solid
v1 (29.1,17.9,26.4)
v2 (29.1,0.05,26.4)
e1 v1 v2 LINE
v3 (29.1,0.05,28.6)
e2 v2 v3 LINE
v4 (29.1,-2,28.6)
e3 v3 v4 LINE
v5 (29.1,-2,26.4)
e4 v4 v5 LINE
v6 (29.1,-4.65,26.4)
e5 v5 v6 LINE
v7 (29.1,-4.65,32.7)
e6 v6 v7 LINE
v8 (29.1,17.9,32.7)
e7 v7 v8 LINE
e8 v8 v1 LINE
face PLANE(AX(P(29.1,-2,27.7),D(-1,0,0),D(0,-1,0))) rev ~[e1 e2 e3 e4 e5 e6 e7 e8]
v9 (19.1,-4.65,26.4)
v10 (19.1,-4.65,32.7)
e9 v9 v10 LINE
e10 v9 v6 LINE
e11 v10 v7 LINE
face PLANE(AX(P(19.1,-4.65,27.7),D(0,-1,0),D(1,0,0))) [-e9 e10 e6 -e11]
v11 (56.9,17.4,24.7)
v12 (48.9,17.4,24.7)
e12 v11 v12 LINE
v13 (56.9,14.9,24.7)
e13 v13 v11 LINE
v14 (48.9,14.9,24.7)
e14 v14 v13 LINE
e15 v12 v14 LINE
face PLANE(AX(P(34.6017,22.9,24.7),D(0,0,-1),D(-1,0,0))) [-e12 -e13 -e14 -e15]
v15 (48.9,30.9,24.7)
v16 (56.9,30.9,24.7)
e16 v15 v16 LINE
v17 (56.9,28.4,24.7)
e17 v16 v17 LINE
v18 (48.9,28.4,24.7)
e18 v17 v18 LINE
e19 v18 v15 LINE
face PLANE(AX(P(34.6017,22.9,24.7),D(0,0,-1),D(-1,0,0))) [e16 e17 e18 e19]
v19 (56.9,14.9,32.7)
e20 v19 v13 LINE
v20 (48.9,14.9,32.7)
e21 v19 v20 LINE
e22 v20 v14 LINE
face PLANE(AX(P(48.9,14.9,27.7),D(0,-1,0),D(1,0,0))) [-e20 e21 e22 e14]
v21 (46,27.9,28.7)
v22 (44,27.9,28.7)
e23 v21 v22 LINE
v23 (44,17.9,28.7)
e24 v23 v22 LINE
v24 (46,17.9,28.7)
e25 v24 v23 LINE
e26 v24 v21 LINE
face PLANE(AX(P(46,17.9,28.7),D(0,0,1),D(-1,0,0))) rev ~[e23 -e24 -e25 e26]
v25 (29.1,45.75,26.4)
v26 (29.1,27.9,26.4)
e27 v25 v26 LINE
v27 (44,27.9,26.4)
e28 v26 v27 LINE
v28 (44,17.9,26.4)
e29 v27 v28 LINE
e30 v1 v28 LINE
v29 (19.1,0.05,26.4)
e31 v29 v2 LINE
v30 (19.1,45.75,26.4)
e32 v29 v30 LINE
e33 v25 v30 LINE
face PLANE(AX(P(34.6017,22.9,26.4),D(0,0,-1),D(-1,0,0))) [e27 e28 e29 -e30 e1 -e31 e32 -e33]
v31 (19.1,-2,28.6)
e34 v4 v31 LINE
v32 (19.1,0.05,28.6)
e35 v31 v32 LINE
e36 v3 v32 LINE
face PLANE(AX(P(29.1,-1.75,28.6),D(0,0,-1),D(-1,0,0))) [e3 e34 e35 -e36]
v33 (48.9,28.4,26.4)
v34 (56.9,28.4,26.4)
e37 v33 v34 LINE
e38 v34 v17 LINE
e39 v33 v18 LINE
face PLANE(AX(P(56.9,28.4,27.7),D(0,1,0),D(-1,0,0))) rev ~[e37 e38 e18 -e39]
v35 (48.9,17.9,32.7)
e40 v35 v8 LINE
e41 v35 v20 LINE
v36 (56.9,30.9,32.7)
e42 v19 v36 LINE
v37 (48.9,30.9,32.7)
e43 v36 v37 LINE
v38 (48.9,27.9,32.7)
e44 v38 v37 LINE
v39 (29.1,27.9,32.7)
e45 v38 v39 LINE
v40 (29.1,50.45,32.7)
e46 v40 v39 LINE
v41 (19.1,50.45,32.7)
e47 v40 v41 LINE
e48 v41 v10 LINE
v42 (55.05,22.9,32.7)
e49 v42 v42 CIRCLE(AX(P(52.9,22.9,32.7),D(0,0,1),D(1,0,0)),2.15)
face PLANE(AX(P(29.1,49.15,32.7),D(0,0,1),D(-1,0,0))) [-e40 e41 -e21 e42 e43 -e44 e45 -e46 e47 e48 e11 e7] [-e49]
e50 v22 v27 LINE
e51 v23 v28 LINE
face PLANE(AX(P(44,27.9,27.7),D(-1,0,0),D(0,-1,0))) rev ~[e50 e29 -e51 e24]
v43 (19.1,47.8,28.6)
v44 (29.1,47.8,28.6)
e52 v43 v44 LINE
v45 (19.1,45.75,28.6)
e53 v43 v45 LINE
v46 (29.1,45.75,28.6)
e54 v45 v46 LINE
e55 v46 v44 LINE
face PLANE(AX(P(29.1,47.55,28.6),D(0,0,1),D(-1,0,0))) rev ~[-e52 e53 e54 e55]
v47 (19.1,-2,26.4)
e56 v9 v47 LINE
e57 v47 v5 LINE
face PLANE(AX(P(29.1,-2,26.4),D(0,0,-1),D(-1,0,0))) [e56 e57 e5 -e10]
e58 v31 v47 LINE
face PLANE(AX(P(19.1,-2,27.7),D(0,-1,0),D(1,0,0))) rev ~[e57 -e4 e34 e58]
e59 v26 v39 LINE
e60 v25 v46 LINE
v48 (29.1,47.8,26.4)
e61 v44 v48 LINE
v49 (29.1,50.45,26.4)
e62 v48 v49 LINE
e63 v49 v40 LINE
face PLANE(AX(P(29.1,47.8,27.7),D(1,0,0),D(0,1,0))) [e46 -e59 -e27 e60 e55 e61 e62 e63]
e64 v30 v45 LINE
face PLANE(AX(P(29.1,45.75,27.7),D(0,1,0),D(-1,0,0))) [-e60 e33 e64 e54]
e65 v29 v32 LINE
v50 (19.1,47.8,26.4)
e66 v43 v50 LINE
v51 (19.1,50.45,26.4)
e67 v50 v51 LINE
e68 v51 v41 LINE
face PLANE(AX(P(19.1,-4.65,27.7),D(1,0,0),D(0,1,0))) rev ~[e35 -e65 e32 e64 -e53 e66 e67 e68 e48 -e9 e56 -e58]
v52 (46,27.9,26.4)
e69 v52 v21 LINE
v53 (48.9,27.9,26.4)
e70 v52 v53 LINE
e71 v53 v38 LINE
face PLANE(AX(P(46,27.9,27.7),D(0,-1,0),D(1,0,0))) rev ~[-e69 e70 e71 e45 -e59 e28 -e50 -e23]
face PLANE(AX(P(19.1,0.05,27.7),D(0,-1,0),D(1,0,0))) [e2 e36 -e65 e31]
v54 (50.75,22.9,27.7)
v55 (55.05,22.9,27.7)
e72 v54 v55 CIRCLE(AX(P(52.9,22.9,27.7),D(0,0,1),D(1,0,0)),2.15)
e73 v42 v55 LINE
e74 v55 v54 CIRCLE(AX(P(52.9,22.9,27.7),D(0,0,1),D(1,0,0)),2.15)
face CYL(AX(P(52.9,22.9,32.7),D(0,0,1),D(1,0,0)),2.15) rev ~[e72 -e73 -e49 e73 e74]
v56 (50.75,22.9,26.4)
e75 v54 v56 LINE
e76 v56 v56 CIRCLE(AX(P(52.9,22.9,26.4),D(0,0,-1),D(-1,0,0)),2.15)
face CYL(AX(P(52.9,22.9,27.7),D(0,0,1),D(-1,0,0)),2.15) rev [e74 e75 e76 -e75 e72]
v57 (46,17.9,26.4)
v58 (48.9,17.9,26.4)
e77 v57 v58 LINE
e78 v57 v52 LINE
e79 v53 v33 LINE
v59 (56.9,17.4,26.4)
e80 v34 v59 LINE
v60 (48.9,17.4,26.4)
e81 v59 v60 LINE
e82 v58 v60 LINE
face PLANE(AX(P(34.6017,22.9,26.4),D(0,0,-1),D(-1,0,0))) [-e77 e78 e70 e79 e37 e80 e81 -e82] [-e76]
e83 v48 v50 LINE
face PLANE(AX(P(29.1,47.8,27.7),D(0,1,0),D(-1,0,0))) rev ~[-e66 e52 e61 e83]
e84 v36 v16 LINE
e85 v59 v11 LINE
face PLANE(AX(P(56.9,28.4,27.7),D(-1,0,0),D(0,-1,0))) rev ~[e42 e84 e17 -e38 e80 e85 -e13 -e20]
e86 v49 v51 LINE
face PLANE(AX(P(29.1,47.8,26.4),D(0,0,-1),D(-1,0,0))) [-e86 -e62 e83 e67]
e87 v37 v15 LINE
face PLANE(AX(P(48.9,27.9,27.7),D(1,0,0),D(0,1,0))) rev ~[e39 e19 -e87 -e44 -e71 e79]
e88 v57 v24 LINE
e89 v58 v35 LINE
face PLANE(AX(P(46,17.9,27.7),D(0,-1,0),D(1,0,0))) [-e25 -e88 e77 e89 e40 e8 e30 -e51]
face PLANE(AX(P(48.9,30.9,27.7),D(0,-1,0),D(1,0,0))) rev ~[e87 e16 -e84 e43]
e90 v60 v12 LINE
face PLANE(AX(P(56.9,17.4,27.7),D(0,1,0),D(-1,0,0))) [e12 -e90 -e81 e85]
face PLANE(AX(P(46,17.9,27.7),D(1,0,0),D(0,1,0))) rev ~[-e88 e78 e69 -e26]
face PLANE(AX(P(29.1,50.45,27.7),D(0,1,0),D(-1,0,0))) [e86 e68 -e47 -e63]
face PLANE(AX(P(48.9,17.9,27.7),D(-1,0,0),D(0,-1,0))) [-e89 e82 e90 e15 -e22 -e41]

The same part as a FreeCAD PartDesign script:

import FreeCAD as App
import Part
import Sketcher
from FreeCAD import Vector
Q = App.Units.Quantity


def add_polygon(sketch, points):
    """Adds a closed chain of lines whose ends are joined by coincident constraints."""
    first, n = sketch.GeometryCount, len(points)
    for a, b in zip(points, points[1:] + points[:1]):
        sketch.addGeometry(Part.LineSegment(App.Vector(*a, 0), App.Vector(*b, 0)), False)
    for i in range(n):
        sketch.addConstraint(Sketcher.Constraint("Coincident", first + i, 2, first + (i + 1) % n, 1))

doc = App.newDocument("Part")
body = doc.addObject("PartDesign::Body", "Body")

# Sketch on XY plane
sketch1 = doc.addObject("Sketcher::SketchObject", "Sketch")
body.addObject(sketch1)
sketch1.AttachmentSupport = (doc.XY_Plane, [""])
sketch1.MapMode = "FlatFace"
sketch1.AttachmentOffset = App.Placement(Vector(0, 0, 27.7), App.Rotation())
add_polygon(sketch1, [(29, 0), (29, 46), (19, 46), (19, 0)])  # lines 0-3
sketch1.addConstraint([
    Sketcher.Constraint("Vertical", 0),
    Sketcher.Constraint("Horizontal", 1),
    Sketcher.Constraint("Vertical", 2),
    Sketcher.Constraint("Horizontal", 3),
    Sketcher.Constraint("DistanceX", 1, 2, 1, 1, Q("10 mm")),
    Sketcher.Constraint("DistanceY", 0, 1, 0, 2, Q("45.3 mm")),
    Sketcher.Constraint("DistanceX", -1, 1, 0, 2, Q("29.1 mm")),
    Sketcher.Constraint("DistanceY", -1, 1, 0, 2, Q("45.55 mm")),
])
pad1 = doc.addObject("PartDesign::Pad", "Pad")
body.addObject(pad1)
pad1.Profile = sketch1
pad1.Length = 3

# Sketch on XZ plane
sketch2 = doc.addObject("Sketcher::SketchObject", "Sketch001")
body.addObject(sketch2)
sketch2.AttachmentSupport = (doc.XZ_Plane, [""])
sketch2.MapMode = "FlatFace"
sketch2.AttachmentOffset = App.Placement(Vector(0, 0, -45.55), App.Rotation())
add_polygon(sketch2, [(29.1, 30.7), (29.1, 28.6), (19.1, 28.6), (19.1, 30.7)])  # lines 0-3
sketch2.addConstraint([
    Sketcher.Constraint("Vertical", 0),
    Sketcher.Constraint("Horizontal", 1),
    Sketcher.Constraint("Vertical", 2),
    Sketcher.Constraint("Horizontal", 3),
    Sketcher.Constraint("DistanceY", 0, 2, 0, 1, Q("2.1 mm")),
    Sketcher.Constraint("DistanceX", 1, 2, 1, 1, Q("10 mm")),
    Sketcher.Constraint("DistanceX", -1, 1, 0, 2, Q("29.1 mm")),
    Sketcher.Constraint("DistanceY", -1, 1, 0, 2, Q("28.6 mm")),
])
pad2 = doc.addObject("PartDesign::Pad", "Pad001")
body.addObject(pad2)
pad2.Profile = sketch2
pad2.Length = 2
pad2.Reversed = True
doc.recompute()

datumplane = doc.addObject("PartDesign::Plane", "DatumPlane")
body.addObject(datumplane)
datumplane.AttachmentSupport = (doc.XZ_Plane, [""])
datumplane.MapMode = "FlatFace"
datumplane.AttachmentOffset = App.Placement(Vector(0, 0, -22.9), App.Rotation())
mirrored = doc.addObject("PartDesign::Mirrored", "Mirrored")
body.addObject(mirrored)
mirrored.Originals = [pad2]
mirrored.MirrorPlane = (datumplane, [""])
body.Tip = mirrored

# Sketch on XZ plane
sketch3 = doc.addObject("Sketcher::SketchObject", "Sketch002")
body.addObject(sketch3)
sketch3.AttachmentSupport = (doc.XZ_Plane, [""])
sketch3.MapMode = "FlatFace"
sketch3.AttachmentOffset = App.Placement(Vector(0, 0, -0.25), App.Rotation())
add_polygon(sketch3, [(29.1, 27.7), (29.1, 28.6), (19.1, 28.6), (19.1, 27.7)])  # lines 0-3
sketch3.addConstraint([
    Sketcher.Constraint("Vertical", 0),
    Sketcher.Constraint("Horizontal", 1),
    Sketcher.Constraint("Vertical", 2),
    Sketcher.Constraint("Horizontal", 3),
    Sketcher.Constraint("DistanceX", 1, 2, 1, 1, Q("10 mm")),
    Sketcher.Constraint("DistanceY", 0, 1, 0, 2, Q("0.9 mm")),
    Sketcher.Constraint("DistanceX", -1, 1, 0, 2, Q("29.1 mm")),
    Sketcher.Constraint("DistanceY", -1, 1, 0, 2, Q("28.6 mm")),
])
pad3 = doc.addObject("PartDesign::Pad", "Pad002")
body.addObject(pad3)
pad3.Profile = sketch3
pad3.Length = 0.2

# Sketch on XZ plane
sketch4 = doc.addObject("Sketcher::SketchObject", "Sketch003")
body.addObject(sketch4)
sketch4.AttachmentSupport = (doc.XZ_Plane, [""])
sketch4.MapMode = "FlatFace"
sketch4.AttachmentOffset = App.Placement(Vector(0, 0, -45.55), App.Rotation())
add_polygon(sketch4, [(19.1, 27.7), (19.1, 28.6), (29.1, 28.6), (29.1, 27.7)])  # lines 0-3
sketch4.addConstraint([
    Sketcher.Constraint("Vertical", 0),
    Sketcher.Constraint("Horizontal", 1),
    Sketcher.Constraint("Vertical", 2),
    Sketcher.Constraint("Horizontal", 3),
    Sketcher.Constraint("DistanceX", 1, 1, 1, 2, Q("10 mm")),
    Sketcher.Constraint("DistanceY", 0, 1, 0, 2, Q("0.9 mm")),
    Sketcher.Constraint("DistanceX", -1, 1, 0, 2, Q("19.1 mm")),
    Sketcher.Constraint("DistanceY", -1, 1, 0, 2, Q("28.6 mm")),
])
pad4 = doc.addObject("PartDesign::Pad", "Pad003")
body.addObject(pad4)
pad4.Profile = sketch4
pad4.Length = 0.2
pad4.Reversed = True

# Sketch on XZ plane
sketch5 = doc.addObject("Sketcher::SketchObject", "Sketch004")
body.addObject(sketch5)
sketch5.AttachmentSupport = (doc.XZ_Plane, [""])
sketch5.MapMode = "FlatFace"
sketch5.AttachmentOffset = App.Placement(Vector(0, 0, -47.55), App.Rotation())
add_polygon(sketch5, [(19.1, 28.6), (19.1, 30.7), (29.1, 30.7), (29.1, 28.6)])  # lines 0-3
sketch5.addConstraint([
    Sketcher.Constraint("Vertical", 0),
    Sketcher.Constraint("Horizontal", 1),
    Sketcher.Constraint("Vertical", 2),
    Sketcher.Constraint("Horizontal", 3),
    Sketcher.Constraint("DistanceX", 1, 1, 1, 2, Q("10 mm")),
    Sketcher.Constraint("DistanceY", 0, 1, 0, 2, Q("2.1 mm")),
    Sketcher.Constraint("DistanceX", -1, 1, 0, 2, Q("19.1 mm")),
    Sketcher.Constraint("DistanceY", -1, 1, 0, 2, Q("30.7 mm")),
])
pad5 = doc.addObject("PartDesign::Pad", "Pad004")
body.addObject(pad5)
pad5.Profile = sketch5
pad5.Length = 1.6
pad5.Reversed = True

# Sketch on XZ plane
sketch6 = doc.addObject("Sketcher::SketchObject", "Sketch005")
body.addObject(sketch6)
sketch6.AttachmentSupport = (doc.XZ_Plane, [""])
sketch6.MapMode = "FlatFace"
sketch6.AttachmentOffset = App.Placement(Vector(0, 0, 1.75), App.Rotation())
add_polygon(sketch6, [(29.1, 30.7), (19.1, 30.7), (19.1, 28.6), (29.1, 28.6)])  # lines 0-3
sketch6.addConstraint([
    Sketcher.Constraint("Horizontal", 0),
    Sketcher.Constraint("Vertical", 1),
    Sketcher.Constraint("Horizontal", 2),
    Sketcher.Constraint("Vertical", 3),
    Sketcher.Constraint("DistanceX", 0, 2, 0, 1, Q("10 mm")),
    Sketcher.Constraint("DistanceY", 1, 2, 1, 1, Q("2.1 mm")),
    Sketcher.Constraint("DistanceX", -1, 1, 0, 2, Q("19.1 mm")),
    Sketcher.Constraint("DistanceY", -1, 1, 0, 2, Q("30.7 mm")),
])
pad6 = doc.addObject("PartDesign::Pad", "Pad005")
body.addObject(pad6)
pad6.Profile = sketch6
pad6.Length = 1.6

# Sketch on XY plane
sketch7 = doc.addObject("Sketcher::SketchObject", "Sketch006")
body.addObject(sketch7)
sketch7.AttachmentSupport = (doc.XY_Plane, [""])
sketch7.MapMode = "FlatFace"
sketch7.AttachmentOffset = App.Placement(Vector(0, 0, 28.6), App.Rotation())
add_polygon(sketch7, [(29.1, 47.6), (19.1, 47.6), (19.1, 49.1), (29.1, 49.1)])  # lines 0-3
sketch7.addConstraint([
    Sketcher.Constraint("Horizontal", 0),
    Sketcher.Constraint("Vertical", 1),
    Sketcher.Constraint("Horizontal", 2),
    Sketcher.Constraint("Vertical", 3),
    Sketcher.Constraint("DistanceY", 1, 1, 1, 2, Q("1.55 mm")),
    Sketcher.Constraint("DistanceX", 0, 2, 0, 1, Q("10 mm")),
    Sketcher.Constraint("DistanceX", -1, 1, 0, 2, Q("19.1 mm")),
    Sketcher.Constraint("DistanceY", -1, 1, 0, 2, Q("47.6 mm")),
])
pad7 = doc.addObject("PartDesign::Pad", "Pad006")
body.addObject(pad7)
pad7.Profile = sketch7
pad7.Length = 0.9
pad7.Reversed = True
doc.recompute()

datumplane2 = doc.addObject("PartDesign::Plane", "DatumPlane001")
body.addObject(datumplane2)
datumplane2.AttachmentSupport = (doc.XZ_Plane, [""])
datumplane2.MapMode = "FlatFace"
datumplane2.AttachmentOffset = App.Placement(Vector(0, 0, -22.9), App.Rotation())
mirrored2 = doc.addObject("PartDesign::Mirrored", "Mirrored001")
body.addObject(mirrored2)
mirrored2.Originals = [pad7]
mirrored2.MirrorPlane = (datumplane2, [""])
body.Tip = mirrored2

# Sketch on XZ plane
sketch8 = doc.addObject("Sketcher::SketchObject", "Sketch007")
body.addObject(sketch8)
sketch8.AttachmentSupport = (doc.XZ_Plane, [""])
sketch8.MapMode = "FlatFace"
sketch8.AttachmentOffset = App.Placement(Vector(0, 0, -47.6), App.Rotation())
add_polygon(sketch8, [(19.1, 28.6), (19.1, 27.7), (29.1, 27.7), (29.1, 28.6)])  # lines 0-3
sketch8.addConstraint([
    Sketcher.Constraint("Vertical", 0),
    Sketcher.Constraint("Horizontal", 1),
    Sketcher.Constraint("Vertical", 2),
    Sketcher.Constraint("Horizontal", 3),
    Sketcher.Constraint("DistanceX", 1, 1, 1, 2, Q("10 mm")),
    Sketcher.Constraint("DistanceY", 0, 2, 0, 1, Q("0.9 mm")),
    Sketcher.Constraint("DistanceX", -1, 1, 0, 2, Q("19.1 mm")),
    Sketcher.Constraint("DistanceY", -1, 1, 0, 2, Q("27.7 mm")),
])
pocket1 = doc.addObject("PartDesign::Pocket", "Pocket")
body.addObject(pocket1)
pocket1.Profile = sketch8
pocket1.Length = 0.2

# Sketch on XZ plane
sketch9 = doc.addObject("Sketcher::SketchObject", "Sketch008")
body.addObject(sketch9)
sketch9.AttachmentSupport = (doc.XZ_Plane, [""])
sketch9.MapMode = "FlatFace"
sketch9.AttachmentOffset = App.Placement(Vector(0, 0, 1.8), App.Rotation())
add_polygon(sketch9, [(29.1, 27.7), (19.1, 27.7), (19.1, 28.6), (29.1, 28.6)])  # lines 0-3
sketch9.addConstraint([
    Sketcher.Constraint("Horizontal", 0),
    Sketcher.Constraint("Vertical", 1),
    Sketcher.Constraint("Horizontal", 2),
    Sketcher.Constraint("Vertical", 3),
    Sketcher.Constraint("DistanceX", 0, 2, 0, 1, Q("10 mm")),
    Sketcher.Constraint("DistanceY", 1, 1, 1, 2, Q("0.9 mm")),
    Sketcher.Constraint("DistanceX", -1, 1, 0, 2, Q("19.1 mm")),
    Sketcher.Constraint("DistanceY", -1, 1, 0, 2, Q("27.7 mm")),
])
pocket2 = doc.addObject("PartDesign::Pocket", "Pocket001")
body.addObject(pocket2)
pocket2.Profile = sketch9
pocket2.Length = 0.2
pocket2.Reversed = True

# Sketch on XY plane
sketch10 = doc.addObject("Sketcher::SketchObject", "Sketch009")
body.addObject(sketch10)
sketch10.AttachmentSupport = (doc.XY_Plane, [""])
sketch10.MapMode = "FlatFace"
sketch10.AttachmentOffset = App.Placement(Vector(0, 0, 30.7), App.Rotation())
add_polygon(sketch10, [(29, -3), (29, 49), (19, 49), (19, -3)])  # lines 0-3
sketch10.addConstraint([
    Sketcher.Constraint("Vertical", 0),
    Sketcher.Constraint("Horizontal", 1),
    Sketcher.Constraint("Vertical", 2),
    Sketcher.Constraint("Horizontal", 3),
    Sketcher.Constraint("DistanceX", 1, 2, 1, 1, Q("10 mm")),
    Sketcher.Constraint("DistanceY", 0, 1, 0, 2, Q("52.5 mm")),
    Sketcher.Constraint("DistanceX", -1, 1, 0, 2, Q("29.1 mm")),
    Sketcher.Constraint("DistanceY", -1, 1, 0, 2, Q("49.15 mm")),
])
pad8 = doc.addObject("PartDesign::Pad", "Pad007")
body.addObject(pad8)
pad8.Profile = sketch10
pad8.Length = 2

# Sketch on YZ plane
sketch11 = doc.addObject("Sketcher::SketchObject", "Sketch010")
body.addObject(sketch11)
sketch11.AttachmentSupport = (doc.YZ_Plane, [""])
sketch11.MapMode = "FlatFace"
sketch11.AttachmentOffset = App.Placement(Vector(0, 0, 29.1), App.Rotation())
add_polygon(sketch11, [(18, 28), (28, 28), (28, 33), (18, 33)])  # lines 0-3
sketch11.addConstraint([
    Sketcher.Constraint("Horizontal", 0),
    Sketcher.Constraint("Vertical", 1),
    Sketcher.Constraint("Horizontal", 2),
    Sketcher.Constraint("Vertical", 3),
    Sketcher.Constraint("DistanceX", 0, 1, 0, 2, Q("10 mm")),
    Sketcher.Constraint("DistanceY", 1, 1, 1, 2, Q("5 mm")),
    Sketcher.Constraint("DistanceX", -1, 1, 0, 2, Q("27.9 mm")),
    Sketcher.Constraint("DistanceY", -1, 1, 0, 2, Q("27.7 mm")),
])
pad9 = doc.addObject("PartDesign::Pad", "Pad008")
body.addObject(pad9)
pad9.Profile = sketch11
pad9.Length = 27.8

# Sketch on XZ plane
sketch12 = doc.addObject("Sketcher::SketchObject", "Sketch011")
body.addObject(sketch12)
sketch12.AttachmentSupport = (doc.XZ_Plane, [""])
sketch12.MapMode = "FlatFace"
sketch12.AttachmentOffset = App.Placement(Vector(0, 0, -17.9), App.Rotation())
add_polygon(sketch12, [(44, 27.7), (46, 27.7), (46, 28.7), (44, 28.7)])  # lines 0-3
sketch12.addConstraint([
    Sketcher.Constraint("Horizontal", 0),
    Sketcher.Constraint("Vertical", 1),
    Sketcher.Constraint("Horizontal", 2),
    Sketcher.Constraint("Vertical", 3),
    Sketcher.Constraint("DistanceX", 0, 1, 0, 2, Q("2 mm")),
    Sketcher.Constraint("DistanceY", 1, 1, 1, 2, Q("1 mm")),
    Sketcher.Constraint("DistanceX", -1, 1, 0, 2, Q("46 mm")),
    Sketcher.Constraint("DistanceY", -1, 1, 0, 2, Q("27.7 mm")),
])
pocket3 = doc.addObject("PartDesign::Pocket", "Pocket002")
body.addObject(pocket3)
pocket3.Profile = sketch12
pocket3.Type = "UpToFirst"

# Sketch on XY plane
sketch13 = doc.addObject("Sketcher::SketchObject", "Sketch012")
body.addObject(sketch13)
sketch13.AttachmentSupport = (doc.XY_Plane, [""])
sketch13.MapMode = "FlatFace"
sketch13.AttachmentOffset = App.Placement(Vector(0, 0, 32.7), App.Rotation())
sketch13.addGeometry(Part.Circle(Vector(52.9, 22.9, 0), Vector(0, 0, 1), 2.1), False)
sketch13.addConstraint([
    Sketcher.Constraint("Diameter", 0, Q("4.3 mm")),
    Sketcher.Constraint("DistanceX", -1, 1, 0, 3, Q("52.9 mm")),
    Sketcher.Constraint("DistanceY", -1, 1, 0, 3, Q("22.9 mm")),
])
pocket4 = doc.addObject("PartDesign::Pocket", "Pocket003")
body.addObject(pocket4)
pocket4.Profile = sketch13
pocket4.Type = "UpToFirst"

# Sketch on YZ plane
sketch14 = doc.addObject("Sketcher::SketchObject", "Sketch013")
body.addObject(sketch14)
sketch14.AttachmentSupport = (doc.YZ_Plane, [""])
sketch14.MapMode = "FlatFace"
sketch14.AttachmentOffset = App.Placement(Vector(0, 0, 56.9), App.Rotation())
add_polygon(sketch14, [(18, 33), (18, 28), (28, 28), (28, 33)])  # lines 0-3
sketch14.addConstraint([
    Sketcher.Constraint("Vertical", 0),
    Sketcher.Constraint("Horizontal", 1),
    Sketcher.Constraint("Vertical", 2),
    Sketcher.Constraint("Horizontal", 3),
    Sketcher.Constraint("DistanceX", 1, 1, 1, 2, Q("10 mm")),
    Sketcher.Constraint("DistanceY", 0, 2, 0, 1, Q("5 mm")),
    Sketcher.Constraint("DistanceX", -1, 1, 0, 2, Q("17.9 mm")),
    Sketcher.Constraint("DistanceY", -1, 1, 0, 2, Q("27.7 mm")),
])
pad10 = doc.addObject("PartDesign::Pad", "Pad009")
body.addObject(pad10)
pad10.Profile = sketch14
pad10.Length = 3

# Sketch on XZ plane
sketch15 = doc.addObject("Sketcher::SketchObject", "Sketch014")
body.addObject(sketch15)
sketch15.AttachmentSupport = (doc.XZ_Plane, [""])
sketch15.MapMode = "FlatFace"
sketch15.AttachmentOffset = App.Placement(Vector(0, 0, -17.9), App.Rotation())
add_polygon(sketch15, [(49, 33), (49, 28), (60, 28), (60, 33)])  # lines 0-3
sketch15.addConstraint([
    Sketcher.Constraint("Vertical", 0),
    Sketcher.Constraint("Horizontal", 1),
    Sketcher.Constraint("Vertical", 2),
    Sketcher.Constraint("Horizontal", 3),
    Sketcher.Constraint("DistanceX", 1, 1, 1, 2, Q("11 mm")),
    Sketcher.Constraint("DistanceY", 0, 2, 0, 1, Q("5 mm")),
    Sketcher.Constraint("DistanceX", -1, 1, 0, 2, Q("48.9 mm")),
    Sketcher.Constraint("DistanceY", -1, 1, 0, 2, Q("27.7 mm")),
])
pad11 = doc.addObject("PartDesign::Pad", "Pad010")
body.addObject(pad11)
pad11.Profile = sketch15
pad11.Length = 3

# Sketch on XZ plane
sketch16 = doc.addObject("Sketcher::SketchObject", "Sketch015")
body.addObject(sketch16)
sketch16.AttachmentSupport = (doc.XZ_Plane, [""])
sketch16.MapMode = "FlatFace"
sketch16.AttachmentOffset = App.Placement(Vector(0, 0, -27.9), App.Rotation())
add_polygon(sketch16, [(60, 28), (49, 28), (49, 33), (60, 33)])  # lines 0-3
sketch16.addConstraint([
    Sketcher.Constraint("Horizontal", 0),
    Sketcher.Constraint("Vertical", 1),
    Sketcher.Constraint("Horizontal", 2),
    Sketcher.Constraint("Vertical", 3),
    Sketcher.Constraint("DistanceX", 0, 2, 0, 1, Q("11 mm")),
    Sketcher.Constraint("DistanceY", 1, 1, 1, 2, Q("5 mm")),
    Sketcher.Constraint("DistanceX", -1, 1, 0, 2, Q("48.9 mm")),
    Sketcher.Constraint("DistanceY", -1, 1, 0, 2, Q("27.7 mm")),
])
pad12 = doc.addObject("PartDesign::Pad", "Pad011")
body.addObject(pad12)
pad12.Profile = sketch16
pad12.Length = 3
pad12.Reversed = True

# Sketch on XY plane
sketch17 = doc.addObject("Sketcher::SketchObject", "Sketch016")
body.addObject(sketch17)
sketch17.AttachmentSupport = (doc.XY_Plane, [""])
sketch17.MapMode = "FlatFace"
sketch17.AttachmentOffset = App.Placement(Vector(0, 0, 27.7), App.Rotation())
add_polygon(sketch17, [(56.9, 14.9), (48.9, 14.9), (48.9, 17.4), (56.9, 17.4)])  # lines 0-3
sketch17.addConstraint([
    Sketcher.Constraint("Horizontal", 0),
    Sketcher.Constraint("Vertical", 1),
    Sketcher.Constraint("Horizontal", 2),
    Sketcher.Constraint("Vertical", 3),
    Sketcher.Constraint("DistanceX", 0, 2, 0, 1, Q("8 mm")),
    Sketcher.Constraint("DistanceY", 1, 1, 1, 2, Q("2.5 mm")),
    Sketcher.Constraint("DistanceX", -1, 1, 0, 2, Q("48.9 mm")),
    Sketcher.Constraint("DistanceY", -1, 1, 0, 2, Q("14.9 mm")),
])
pad13 = doc.addObject("PartDesign::Pad", "Pad012")
body.addObject(pad13)
pad13.Profile = sketch17
pad13.Length = 3
pad13.Reversed = True

# Sketch on XY plane
sketch18 = doc.addObject("Sketcher::SketchObject", "Sketch017")
body.addObject(sketch18)
sketch18.AttachmentSupport = (doc.XY_Plane, [""])
sketch18.MapMode = "FlatFace"
sketch18.AttachmentOffset = App.Placement(Vector(0, 0, 27.7), App.Rotation())
add_polygon(sketch18, [(48.9, 28.4), (48.9, 30.9), (56.9, 30.9), (56.9, 28.4)])  # lines 0-3
sketch18.addConstraint([
    Sketcher.Constraint("Vertical", 0),
    Sketcher.Constraint("Horizontal", 1),
    Sketcher.Constraint("Vertical", 2),
    Sketcher.Constraint("Horizontal", 3),
    Sketcher.Constraint("DistanceX", 1, 1, 1, 2, Q("8 mm")),
    Sketcher.Constraint("DistanceY", 0, 1, 0, 2, Q("2.5 mm")),
    Sketcher.Constraint("DistanceX", -1, 1, 0, 2, Q("48.9 mm")),
    Sketcher.Constraint("DistanceY", -1, 1, 0, 2, Q("30.9 mm")),
])
pad14 = doc.addObject("PartDesign::Pad", "Pad013")
body.addObject(pad14)
pad14.Profile = sketch18
pad14.Length = 3
pad14.Reversed = True

# Sketch on YZ plane
sketch19 = doc.addObject("Sketcher::SketchObject", "Sketch018")
body.addObject(sketch19)
sketch19.AttachmentSupport = (doc.YZ_Plane, [""])
sketch19.MapMode = "FlatFace"
sketch19.AttachmentOffset = App.Placement(Vector(0, 0, 59.9), App.Rotation())
add_polygon(sketch19, [(15, 28), (31, 28), (31, 33), (15, 33)])  # lines 0-3
sketch19.addConstraint([
    Sketcher.Constraint("Horizontal", 0),
    Sketcher.Constraint("Vertical", 1),
    Sketcher.Constraint("Horizontal", 2),
    Sketcher.Constraint("Vertical", 3),
    Sketcher.Constraint("DistanceX", 0, 1, 0, 2, Q("16 mm")),
    Sketcher.Constraint("DistanceY", 1, 1, 1, 2, Q("5 mm")),
    Sketcher.Constraint("DistanceX", -1, 1, 0, 2, Q("30.9 mm")),
    Sketcher.Constraint("DistanceY", -1, 1, 0, 2, Q("27.7 mm")),
])
pocket5 = doc.addObject("PartDesign::Pocket", "Pocket004")
body.addObject(pocket5)
pocket5.Profile = sketch19
pocket5.Length = 3

# Sketch on XY plane
sketch20 = doc.addObject("Sketcher::SketchObject", "Sketch019")
body.addObject(sketch20)
sketch20.AttachmentSupport = (doc.XY_Plane, [""])
sketch20.MapMode = "FlatFace"
sketch20.AttachmentOffset = App.Placement(Vector(0, 0, 27.7), App.Rotation())
add_polygon(sketch20, [(29, 28), (44, 28), (44, 18), (29, 18), (29, 0), (19, 0), (19, 46), (29, 46)])  # lines 0-7
sketch20.addConstraint([
    Sketcher.Constraint("Horizontal", 0),
    Sketcher.Constraint("Vertical", 1),
    Sketcher.Constraint("Horizontal", 2),
    Sketcher.Constraint("Vertical", 3),
    Sketcher.Constraint("Horizontal", 4),
    Sketcher.Constraint("Vertical", 5),
    Sketcher.Constraint("Horizontal", 6),
    Sketcher.Constraint("Vertical", 7),
    Sketcher.Constraint("Vertical", 3, 2, 6, 2),
    Sketcher.Constraint("Equal", 6, 1),
    Sketcher.Constraint("Equal", 3, 7),
    Sketcher.Constraint("DistanceX", 4, 2, 4, 1, Q("10 mm")),
    Sketcher.Constraint("DistanceX", 0, 1, 0, 2, Q("14.9 mm")),
    Sketcher.Constraint("DistanceY", 5, 1, 5, 2, Q("45.7 mm")),
    Sketcher.Constraint("DistanceX", -1, 1, 0, 2, Q("44 mm")),
    Sketcher.Constraint("DistanceY", -1, 1, 0, 2, Q("27.9 mm")),
])
pad15 = doc.addObject("PartDesign::Pad", "Pad014")
body.addObject(pad15)
pad15.Profile = sketch20
pad15.Length = 1.3
pad15.Reversed = True

# Sketch on XZ plane
sketch21 = doc.addObject("Sketcher::SketchObject", "Sketch020")
body.addObject(sketch21)
sketch21.AttachmentSupport = (doc.XZ_Plane, [""])
sketch21.MapMode = "FlatFace"
sketch21.AttachmentOffset = App.Placement(Vector(0, 0, 3.35), App.Rotation())
add_polygon(sketch21, [(19, 33), (19, 28), (29, 28), (29, 33)])  # lines 0-3
sketch21.addConstraint([
    Sketcher.Constraint("Vertical", 0),
    Sketcher.Constraint("Horizontal", 1),
    Sketcher.Constraint("Vertical", 2),
    Sketcher.Constraint("Horizontal", 3),
    Sketcher.Constraint("DistanceX", 1, 1, 1, 2, Q("10 mm")),
    Sketcher.Constraint("DistanceY", 0, 2, 0, 1, Q("5 mm")),
    Sketcher.Constraint("DistanceX", -1, 1, 0, 2, Q("19.1 mm")),
    Sketcher.Constraint("DistanceY", -1, 1, 0, 2, Q("27.7 mm")),
])
pad16 = doc.addObject("PartDesign::Pad", "Pad015")
body.addObject(pad16)
pad16.Profile = sketch21
pad16.Length = 1.3

# Sketch on XZ plane
sketch22 = doc.addObject("Sketcher::SketchObject", "Sketch021")
body.addObject(sketch22)
sketch22.AttachmentSupport = (doc.XZ_Plane, [""])
sketch22.MapMode = "FlatFace"
sketch22.AttachmentOffset = App.Placement(Vector(0, 0, -49.15), App.Rotation())
add_polygon(sketch22, [(29, 33), (29, 28), (19, 28), (19, 33)])  # lines 0-3
sketch22.addConstraint([
    Sketcher.Constraint("Vertical", 0),
    Sketcher.Constraint("Horizontal", 1),
    Sketcher.Constraint("Vertical", 2),
    Sketcher.Constraint("Horizontal", 3),
    Sketcher.Constraint("DistanceX", 1, 2, 1, 1, Q("10 mm")),
    Sketcher.Constraint("DistanceY", 0, 2, 0, 1, Q("5 mm")),
    Sketcher.Constraint("DistanceX", -1, 1, 0, 2, Q("29.1 mm")),
    Sketcher.Constraint("DistanceY", -1, 1, 0, 2, Q("27.7 mm")),
])
pad17 = doc.addObject("PartDesign::Pad", "Pad016")
body.addObject(pad17)
pad17.Profile = sketch22
pad17.Length = 1.3
pad17.Reversed = True

# Sketch on XY plane
sketch23 = doc.addObject("Sketcher::SketchObject", "Sketch022")
body.addObject(sketch23)
sketch23.AttachmentSupport = (doc.XY_Plane, [""])
sketch23.MapMode = "FlatFace"
sketch23.AttachmentOffset = App.Placement(Vector(0, 0, 27.7), App.Rotation())
add_polygon(sketch23, [(29.1, 50.5), (29.1, 47.8), (19.1, 47.8), (19.1, 50.5)])  # lines 0-3
sketch23.addConstraint([
    Sketcher.Constraint("Vertical", 0),
    Sketcher.Constraint("Horizontal", 1),
    Sketcher.Constraint("Vertical", 2),
    Sketcher.Constraint("Horizontal", 3),
    Sketcher.Constraint("DistanceX", 1, 2, 1, 1, Q("10 mm")),
    Sketcher.Constraint("DistanceY", 0, 2, 0, 1, Q("2.65 mm")),
    Sketcher.Constraint("DistanceX", -1, 1, 0, 2, Q("29.1 mm")),
    Sketcher.Constraint("DistanceY", -1, 1, 0, 2, Q("47.8 mm")),
])
pad18 = doc.addObject("PartDesign::Pad", "Pad017")
body.addObject(pad18)
pad18.Profile = sketch23
pad18.Length = 1.3
pad18.Reversed = True

# Sketch on XY plane
sketch24 = doc.addObject("Sketcher::SketchObject", "Sketch023")
body.addObject(sketch24)
sketch24.AttachmentSupport = (doc.XY_Plane, [""])
sketch24.MapMode = "FlatFace"
sketch24.AttachmentOffset = App.Placement(Vector(0, 0, 27.7), App.Rotation())
add_polygon(sketch24, [(19.1, -4.7), (19.1, -2), (29.1, -2), (29.1, -4.7)])  # lines 0-3
sketch24.addConstraint([
    Sketcher.Constraint("Vertical", 0),
    Sketcher.Constraint("Horizontal", 1),
    Sketcher.Constraint("Vertical", 2),
    Sketcher.Constraint("Horizontal", 3),
    Sketcher.Constraint("DistanceX", 1, 1, 1, 2, Q("10 mm")),
    Sketcher.Constraint("DistanceY", 0, 2, -1, 1, Q("2 mm")),
    Sketcher.Constraint("DistanceY", 0, 1, 0, 2, Q("2.65 mm")),
    Sketcher.Constraint("DistanceX", -1, 1, 0, 2, Q("19.1 mm")),
])
pad19 = doc.addObject("PartDesign::Pad", "Pad018")
body.addObject(pad19)
pad19.Profile = sketch24
pad19.Length = 1.3
pad19.Reversed = True

# Sketch on XY plane
sketch25 = doc.addObject("Sketcher::SketchObject", "Sketch024")
body.addObject(sketch25)
sketch25.AttachmentSupport = (doc.XY_Plane, [""])
sketch25.MapMode = "FlatFace"
sketch25.AttachmentOffset = App.Placement(Vector(0, 0, 27.7), App.Rotation())
add_polygon(sketch25, [(48.9, 28.4), (56.9, 28.4), (56.9, 17.4), (48.9, 17.4), (48.9, 17.9), (46, 17.9), (46, 27.9), (48.9, 27.9)])  # lines 0-7
sketch25.addGeometry(Part.Circle(Vector(52.9, 22.9, 0), Vector(0, 0, 1), 2.1), False)  # 8
sketch25.addConstraint([
    Sketcher.Constraint("Horizontal", 0),
    Sketcher.Constraint("Vertical", 1),
    Sketcher.Constraint("Horizontal", 2),
    Sketcher.Constraint("Vertical", 3),
    Sketcher.Constraint("Horizontal", 4),
    Sketcher.Constraint("Vertical", 5),
    Sketcher.Constraint("Horizontal", 6),
    Sketcher.Constraint("Vertical", 7),
    Sketcher.Constraint("Vertical", 3, 2, 6, 2),
    Sketcher.Constraint("Equal", 3, 7),
    Sketcher.Constraint("Diameter", 8, Q("4.3 mm")),
    Sketcher.Constraint("DistanceX", 0, 1, 0, 2, Q("8 mm")),
    Sketcher.Constraint("DistanceY", 1, 2, 1, 1, Q("11 mm")),
    Sketcher.Constraint("DistanceY", 5, 1, 5, 2, Q("10 mm")),
    Sketcher.Constraint("DistanceX", 4, 2, 4, 1, Q("2.9 mm")),
    Sketcher.Constraint("DistanceX", -1, 1, 4, 2, Q("46 mm")),
    Sketcher.Constraint("DistanceX", 8, 3, 0, 2, Q("4 mm")),
    Sketcher.Constraint("DistanceY", 3, 2, 8, 3, Q("5 mm")),
    Sketcher.Constraint("DistanceY", -1, 1, 8, 3, Q("22.9 mm")),
])
pad20 = doc.addObject("PartDesign::Pad", "Pad019")
body.addObject(pad20)
pad20.Profile = sketch25
pad20.Length = 1.3
pad20.Reversed = True

doc.recompute()
